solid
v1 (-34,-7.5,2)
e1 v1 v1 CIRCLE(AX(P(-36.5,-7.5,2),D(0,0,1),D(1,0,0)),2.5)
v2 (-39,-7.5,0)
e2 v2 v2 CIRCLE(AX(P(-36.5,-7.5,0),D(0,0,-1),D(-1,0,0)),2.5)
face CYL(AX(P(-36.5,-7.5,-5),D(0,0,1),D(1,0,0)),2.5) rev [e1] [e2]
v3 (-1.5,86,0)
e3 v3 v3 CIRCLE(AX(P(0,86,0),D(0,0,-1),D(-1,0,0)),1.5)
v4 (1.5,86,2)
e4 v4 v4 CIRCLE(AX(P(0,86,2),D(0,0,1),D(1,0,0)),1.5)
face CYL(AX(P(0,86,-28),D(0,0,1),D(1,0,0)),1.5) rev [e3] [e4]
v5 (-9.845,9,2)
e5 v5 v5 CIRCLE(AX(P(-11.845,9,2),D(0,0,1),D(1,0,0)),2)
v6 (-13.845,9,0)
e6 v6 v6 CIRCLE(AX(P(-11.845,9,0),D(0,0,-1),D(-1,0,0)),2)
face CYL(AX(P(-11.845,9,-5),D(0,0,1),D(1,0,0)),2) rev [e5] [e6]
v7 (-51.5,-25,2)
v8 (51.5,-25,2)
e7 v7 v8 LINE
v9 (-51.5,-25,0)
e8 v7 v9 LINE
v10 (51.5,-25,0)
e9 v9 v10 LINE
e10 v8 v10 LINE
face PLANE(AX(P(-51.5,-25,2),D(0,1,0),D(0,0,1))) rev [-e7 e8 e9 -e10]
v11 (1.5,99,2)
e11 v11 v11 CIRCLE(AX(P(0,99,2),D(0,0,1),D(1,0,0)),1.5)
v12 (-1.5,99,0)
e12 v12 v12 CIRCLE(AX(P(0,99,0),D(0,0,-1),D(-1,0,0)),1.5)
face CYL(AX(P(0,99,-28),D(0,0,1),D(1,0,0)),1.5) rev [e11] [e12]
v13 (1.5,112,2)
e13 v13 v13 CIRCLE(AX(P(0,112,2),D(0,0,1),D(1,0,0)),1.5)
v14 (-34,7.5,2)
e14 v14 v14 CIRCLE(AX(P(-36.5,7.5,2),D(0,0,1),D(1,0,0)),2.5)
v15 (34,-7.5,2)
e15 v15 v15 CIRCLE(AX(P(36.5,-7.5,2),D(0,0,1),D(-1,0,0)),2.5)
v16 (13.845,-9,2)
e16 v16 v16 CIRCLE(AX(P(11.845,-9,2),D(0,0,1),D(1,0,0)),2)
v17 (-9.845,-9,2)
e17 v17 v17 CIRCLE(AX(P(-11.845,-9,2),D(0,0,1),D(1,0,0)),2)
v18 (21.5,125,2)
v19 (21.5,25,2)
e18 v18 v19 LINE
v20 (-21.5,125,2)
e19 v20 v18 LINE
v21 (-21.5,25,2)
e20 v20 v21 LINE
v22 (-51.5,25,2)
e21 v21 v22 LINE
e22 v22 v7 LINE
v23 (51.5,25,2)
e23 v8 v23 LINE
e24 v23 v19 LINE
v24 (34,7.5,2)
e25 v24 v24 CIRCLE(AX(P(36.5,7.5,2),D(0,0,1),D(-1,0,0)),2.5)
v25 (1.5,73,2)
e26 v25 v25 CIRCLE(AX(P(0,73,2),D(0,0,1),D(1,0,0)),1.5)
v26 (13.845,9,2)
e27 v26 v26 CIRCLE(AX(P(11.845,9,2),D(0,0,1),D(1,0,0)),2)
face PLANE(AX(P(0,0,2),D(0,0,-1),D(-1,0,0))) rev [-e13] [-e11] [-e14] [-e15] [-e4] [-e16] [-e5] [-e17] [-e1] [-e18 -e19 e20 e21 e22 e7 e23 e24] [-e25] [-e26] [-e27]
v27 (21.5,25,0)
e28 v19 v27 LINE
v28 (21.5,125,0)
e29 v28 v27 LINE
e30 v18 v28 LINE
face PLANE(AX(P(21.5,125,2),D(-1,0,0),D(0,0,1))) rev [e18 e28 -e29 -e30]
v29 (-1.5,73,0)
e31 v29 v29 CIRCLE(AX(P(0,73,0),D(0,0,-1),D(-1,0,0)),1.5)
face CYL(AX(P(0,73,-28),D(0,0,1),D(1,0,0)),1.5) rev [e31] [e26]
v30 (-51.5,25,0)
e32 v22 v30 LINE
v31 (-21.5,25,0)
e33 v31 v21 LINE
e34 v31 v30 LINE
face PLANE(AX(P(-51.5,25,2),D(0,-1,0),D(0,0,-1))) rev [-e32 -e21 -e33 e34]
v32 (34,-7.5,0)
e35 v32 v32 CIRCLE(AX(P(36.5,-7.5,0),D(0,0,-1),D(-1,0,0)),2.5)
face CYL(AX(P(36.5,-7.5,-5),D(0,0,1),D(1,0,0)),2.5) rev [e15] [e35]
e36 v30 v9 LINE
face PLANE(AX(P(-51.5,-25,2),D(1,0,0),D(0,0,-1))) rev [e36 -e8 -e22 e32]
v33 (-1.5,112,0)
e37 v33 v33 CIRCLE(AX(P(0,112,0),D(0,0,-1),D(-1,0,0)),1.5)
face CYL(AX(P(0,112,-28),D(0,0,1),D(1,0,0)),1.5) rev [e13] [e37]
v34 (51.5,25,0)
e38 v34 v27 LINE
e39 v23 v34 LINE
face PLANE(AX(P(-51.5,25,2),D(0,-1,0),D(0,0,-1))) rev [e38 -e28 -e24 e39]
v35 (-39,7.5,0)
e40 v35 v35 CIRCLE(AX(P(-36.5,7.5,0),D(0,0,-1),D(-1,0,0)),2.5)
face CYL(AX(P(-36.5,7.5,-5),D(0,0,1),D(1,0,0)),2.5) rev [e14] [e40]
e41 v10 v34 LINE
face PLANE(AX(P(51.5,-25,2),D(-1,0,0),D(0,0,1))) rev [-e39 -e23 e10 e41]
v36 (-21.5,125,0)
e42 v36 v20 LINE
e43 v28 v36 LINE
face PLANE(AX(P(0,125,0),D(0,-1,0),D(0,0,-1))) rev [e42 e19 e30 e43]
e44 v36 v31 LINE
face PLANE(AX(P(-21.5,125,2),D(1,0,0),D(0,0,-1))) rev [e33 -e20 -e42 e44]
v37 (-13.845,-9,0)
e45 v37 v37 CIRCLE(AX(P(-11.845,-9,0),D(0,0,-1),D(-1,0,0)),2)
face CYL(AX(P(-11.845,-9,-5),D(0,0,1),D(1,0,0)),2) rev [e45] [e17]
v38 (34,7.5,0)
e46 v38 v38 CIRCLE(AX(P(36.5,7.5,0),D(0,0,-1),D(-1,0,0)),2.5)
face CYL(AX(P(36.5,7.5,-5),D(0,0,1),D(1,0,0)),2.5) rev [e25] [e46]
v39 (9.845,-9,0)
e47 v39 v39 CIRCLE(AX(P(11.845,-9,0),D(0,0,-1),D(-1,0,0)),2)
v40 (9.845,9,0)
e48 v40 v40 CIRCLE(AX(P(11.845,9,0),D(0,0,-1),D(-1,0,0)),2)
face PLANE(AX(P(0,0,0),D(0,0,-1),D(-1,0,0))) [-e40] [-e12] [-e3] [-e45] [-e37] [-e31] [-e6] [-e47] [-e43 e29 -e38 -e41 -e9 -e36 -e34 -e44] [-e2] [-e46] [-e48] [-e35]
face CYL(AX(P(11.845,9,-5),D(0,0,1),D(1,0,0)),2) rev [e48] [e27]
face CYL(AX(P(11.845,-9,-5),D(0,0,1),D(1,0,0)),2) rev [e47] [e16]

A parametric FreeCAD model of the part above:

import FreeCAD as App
import Part
import Sketcher
Q = App.Units.Quantity


def add_polygon(sketch, points):
    """Adds a closed chain of lines whose ends are joined by coincident constraints."""
    first, n = sketch.GeometryCount, len(points)
    for a, b in zip(points, points[1:] + points[:1]):
        sketch.addGeometry(Part.LineSegment(App.Vector(*a, 0), App.Vector(*b, 0)), False)
    for i in range(n):
        sketch.addConstraint(Sketcher.Constraint("Coincident", first + i, 2, first + (i + 1) % n, 1))

doc = App.newDocument("Part")
params = doc.addObject("Spreadsheet::Sheet", "Params")
for row, (alias, value) in enumerate([
    ("sketch1_width", "103 mm"),
    ("sketch1_height", "50 mm"),
    ("pad1_length", "2 mm"),
    ("sketch2_diameter", "4 mm"),
    ("pocket1_length", "7 mm"),
    ("sketch3_diameter", "5 mm"),
    ("pocket2_length", "7 mm"),
    ("sketch4_width", "43 mm"),
    ("sketch4_height", "2 mm"),
    ("pad2_length", "100 mm"),
    ("sketch5_diameter", "3 mm"),
    ("pocket3_length", "30 mm"),
], start=1):
    params.set(f"A{row}", alias)
    params.set(f"B{row}", "=" + value)
    params.setAlias(f"B{row}", alias)

body = doc.addObject("PartDesign::Body", "Body")

# Sketch on XY plane
sketch1 = body.newObject("Sketcher::SketchObject", "Sketch")
sketch1.AttachmentSupport = (doc.getObject("XY_Plane"), [""])
sketch1.MapMode = "FlatFace"
add_polygon(sketch1, [(-51.5, 25), (-51.5, -25), (51.5, -25), (51.5, 25)])  # lines 0-3
sketch1.addConstraint(Sketcher.Constraint("Vertical", 0))
sketch1.addConstraint(Sketcher.Constraint("Horizontal", 1))
sketch1.addConstraint(Sketcher.Constraint("Vertical", 2))
sketch1.addConstraint(Sketcher.Constraint("Horizontal", 3))
sketch1.addConstraint(Sketcher.Constraint("Symmetric", 0, 2, 2, 2, -1, 1))
sketch1.addConstraint(Sketcher.Constraint("DistanceX", 1, 1, 1, 2, Q("103 mm")))
sketch1.addConstraint(Sketcher.Constraint("DistanceY", 0, 2, 0, 1, Q("50 mm")))
sketch1.setExpression("Constraints[9]", "Params.sketch1_width")
sketch1.setExpression("Constraints[10]", "Params.sketch1_height")
pad1 = body.newObject("PartDesign::Pad", "Pad")
pad1.Profile = sketch1
pad1.setExpression("Length", "Params.pad1_length")

# Sketch on XY plane
sketch2 = body.newObject("Sketcher::SketchObject", "Sketch001")
sketch2.AttachmentSupport = (doc.getObject("XY_Plane"), [""])
sketch2.MapMode = "FlatFace"
sketch2.AttachmentOffset = App.Placement(App.Vector(0, 0, 2), App.Rotation())
sketch2.addGeometry(Part.Circle(App.Vector(-11.845, 9, 0), App.Vector(0, 0, 1), 2), False)
sketch2.addGeometry(Part.Circle(App.Vector(-11.845, -9, 0), App.Vector(0, 0, 1), 2), False)
sketch2.addGeometry(Part.Circle(App.Vector(11.845, -9, 0), App.Vector(0, 0, 1), 2), False)
sketch2.addGeometry(Part.Circle(App.Vector(11.845, 9, 0), App.Vector(0, 0, 1), 2), False)
sketch2.addConstraint(Sketcher.Constraint("Equal", 0, 1))
sketch2.addConstraint(Sketcher.Constraint("Equal", 1, 2))
sketch2.addConstraint(Sketcher.Constraint("Equal", 2, 3))
sketch2.addConstraint(Sketcher.Constraint("Symmetric", 0, 3, 2, 3, -1, 1))
sketch2.addConstraint(Sketcher.Constraint("Symmetric", 1, 3, 3, 3, -1, 1))
sketch2.addConstraint(Sketcher.Constraint("Symmetric", 1, 3, 2, 3, -2))
sketch2.addConstraint(Sketcher.Constraint("Diameter", 0, Q("4 mm")))
sketch2.addConstraint(Sketcher.Constraint("DistanceY", -1, 1, 0, 3, Q("9 mm")))
sketch2.addConstraint(Sketcher.Constraint("DistanceX", 1, 3, 2, 3, Q("23.69 mm")))
sketch2.setExpression("Constraints[6]", "Params.sketch2_diameter")
pocket1 = body.newObject("PartDesign::Pocket", "Pocket")
pocket1.Profile = sketch2
pocket1.setExpression("Length", "Params.pocket1_length")

# Sketch on XY plane
sketch3 = body.newObject("Sketcher::SketchObject", "Sketch002")
sketch3.AttachmentSupport = (doc.getObject("XY_Plane"), [""])
sketch3.MapMode = "FlatFace"
sketch3.AttachmentOffset = App.Placement(App.Vector(0, 0, 2), App.Rotation())
sketch3.addGeometry(Part.Circle(App.Vector(-36.5, 7.5, 0), App.Vector(0, 0, 1), 2.5), False)
sketch3.addGeometry(Part.Circle(App.Vector(-36.5, -7.5, 0), App.Vector(0, 0, 1), 2.5), False)
sketch3.addGeometry(Part.Circle(App.Vector(36.5, -7.5, 0), App.Vector(0, 0, 1), 2.5), False)
sketch3.addGeometry(Part.Circle(App.Vector(36.5, 7.5, 0), App.Vector(0, 0, 1), 2.5), False)
sketch3.addConstraint(Sketcher.Constraint("Equal", 0, 1))
sketch3.addConstraint(Sketcher.Constraint("Equal", 1, 2))
sketch3.addConstraint(Sketcher.Constraint("Equal", 2, 3))
sketch3.addConstraint(Sketcher.Constraint("Symmetric", 0, 3, 2, 3, -1, 1))
sketch3.addConstraint(Sketcher.Constraint("Symmetric", 1, 3, 3, 3, -1, 1))
sketch3.addConstraint(Sketcher.Constraint("Symmetric", 1, 3, 2, 3, -2))
sketch3.addConstraint(Sketcher.Constraint("Diameter", 0, Q("5 mm")))
sketch3.addConstraint(Sketcher.Constraint("DistanceY", 1, 3, 0, 3, Q("15 mm")))
sketch3.addConstraint(Sketcher.Constraint("DistanceX", 1, 3, 2, 3, Q("73 mm")))
sketch3.setExpression("Constraints[6]", "Params.sketch3_diameter")
pocket2 = body.newObject("PartDesign::Pocket", "Pocket001")
pocket2.Profile = sketch3
pocket2.setExpression("Length", "Params.pocket2_length")

# Sketch on XZ plane
sketch4 = body.newObject("Sketcher::SketchObject", "Sketch003")
sketch4.AttachmentSupport = (doc.getObject("XZ_Plane"), [""])
sketch4.MapMode = "FlatFace"
sketch4.AttachmentOffset = App.Placement(App.Vector(0, 0, -25), App.Rotation())
add_polygon(sketch4, [(-21.5, 0), (-21.5, 2), (21.5, 2), (21.5, 0)])  # lines 0-3
sketch4.addConstraint(Sketcher.Constraint("Vertical", 0))
sketch4.addConstraint(Sketcher.Constraint("Horizontal", 1))
sketch4.addConstraint(Sketcher.Constraint("Vertical", 2))
sketch4.addConstraint(Sketcher.Constraint("Horizontal", 3))
sketch4.addConstraint(Sketcher.Constraint("Symmetric", 2, 2, 3, 2, -1, 1))
sketch4.addConstraint(Sketcher.Constraint("DistanceX", 1, 1, 1, 2, Q("43 mm")))
sketch4.addConstraint(Sketcher.Constraint("DistanceY", 0, 1, 0, 2, Q("2 mm")))
sketch4.setExpression("Constraints[9]", "Params.sketch4_width")
sketch4.setExpression("Constraints[10]", "Params.sketch4_height")
pad2 = body.newObject("PartDesign::Pad", "Pad001")
pad2.Profile = sketch4
pad2.setExpression("Length", "Params.pad2_length")
pad2.Reversed = True

# Sketch on XY plane
sketch5 = body.newObject("Sketcher::SketchObject", "Sketch004")
sketch5.AttachmentSupport = (doc.getObject("XY_Plane"), [""])
sketch5.MapMode = "FlatFace"
sketch5.AttachmentOffset = App.Placement(App.Vector(0, 0, 2), App.Rotation())
sketch5.addGeometry(Part.Circle(App.Vector(0, 112, 0), App.Vector(0, 0, 1), 1.5), False)
sketch5.addGeometry(Part.Circle(App.Vector(0, 99, 0), App.Vector(0, 0, 1), 1.5), False)
sketch5.addGeometry(Part.Circle(App.Vector(0, 86, 0), App.Vector(0, 0, 1), 1.5), False)
sketch5.addGeometry(Part.Circle(App.Vector(0, 73, 0), App.Vector(0, 0, 1), 1.5), False)
sketch5.addConstraint(Sketcher.Constraint("Equal", 0, 1))
sketch5.addConstraint(Sketcher.Constraint("Equal", 1, 2))
sketch5.addConstraint(Sketcher.Constraint("Equal", 2, 3))
sketch5.addConstraint(Sketcher.Constraint("PointOnObject", 0, 3, -2))
sketch5.addConstraint(Sketcher.Constraint("PointOnObject", 1, 3, -2))
sketch5.addConstraint(Sketcher.Constraint("PointOnObject", 2, 3, -2))
sketch5.addConstraint(Sketcher.Constraint("PointOnObject", 3, 3, -2))
sketch5.addConstraint(Sketcher.Constraint("Diameter", 0, Q("3 mm")))
sketch5.addConstraint(Sketcher.Constraint("DistanceY", -1, 1, 0, 3, Q("112 mm")))
sketch5.addConstraint(Sketcher.Constraint("DistanceY", -1, 1, 1, 3, Q("99 mm")))
sketch5.addConstraint(Sketcher.Constraint("DistanceY", -1, 1, 2, 3, Q("86 mm")))
sketch5.addConstraint(Sketcher.Constraint("DistanceY", -1, 1, 3, 3, Q("73 mm")))
sketch5.setExpression("Constraints[7]", "Params.sketch5_diameter")
pocket3 = body.newObject("PartDesign::Pocket", "Pocket002")
pocket3.Profile = sketch5
pocket3.setExpression("Length", "Params.pocket3_length")

doc.recompute()
